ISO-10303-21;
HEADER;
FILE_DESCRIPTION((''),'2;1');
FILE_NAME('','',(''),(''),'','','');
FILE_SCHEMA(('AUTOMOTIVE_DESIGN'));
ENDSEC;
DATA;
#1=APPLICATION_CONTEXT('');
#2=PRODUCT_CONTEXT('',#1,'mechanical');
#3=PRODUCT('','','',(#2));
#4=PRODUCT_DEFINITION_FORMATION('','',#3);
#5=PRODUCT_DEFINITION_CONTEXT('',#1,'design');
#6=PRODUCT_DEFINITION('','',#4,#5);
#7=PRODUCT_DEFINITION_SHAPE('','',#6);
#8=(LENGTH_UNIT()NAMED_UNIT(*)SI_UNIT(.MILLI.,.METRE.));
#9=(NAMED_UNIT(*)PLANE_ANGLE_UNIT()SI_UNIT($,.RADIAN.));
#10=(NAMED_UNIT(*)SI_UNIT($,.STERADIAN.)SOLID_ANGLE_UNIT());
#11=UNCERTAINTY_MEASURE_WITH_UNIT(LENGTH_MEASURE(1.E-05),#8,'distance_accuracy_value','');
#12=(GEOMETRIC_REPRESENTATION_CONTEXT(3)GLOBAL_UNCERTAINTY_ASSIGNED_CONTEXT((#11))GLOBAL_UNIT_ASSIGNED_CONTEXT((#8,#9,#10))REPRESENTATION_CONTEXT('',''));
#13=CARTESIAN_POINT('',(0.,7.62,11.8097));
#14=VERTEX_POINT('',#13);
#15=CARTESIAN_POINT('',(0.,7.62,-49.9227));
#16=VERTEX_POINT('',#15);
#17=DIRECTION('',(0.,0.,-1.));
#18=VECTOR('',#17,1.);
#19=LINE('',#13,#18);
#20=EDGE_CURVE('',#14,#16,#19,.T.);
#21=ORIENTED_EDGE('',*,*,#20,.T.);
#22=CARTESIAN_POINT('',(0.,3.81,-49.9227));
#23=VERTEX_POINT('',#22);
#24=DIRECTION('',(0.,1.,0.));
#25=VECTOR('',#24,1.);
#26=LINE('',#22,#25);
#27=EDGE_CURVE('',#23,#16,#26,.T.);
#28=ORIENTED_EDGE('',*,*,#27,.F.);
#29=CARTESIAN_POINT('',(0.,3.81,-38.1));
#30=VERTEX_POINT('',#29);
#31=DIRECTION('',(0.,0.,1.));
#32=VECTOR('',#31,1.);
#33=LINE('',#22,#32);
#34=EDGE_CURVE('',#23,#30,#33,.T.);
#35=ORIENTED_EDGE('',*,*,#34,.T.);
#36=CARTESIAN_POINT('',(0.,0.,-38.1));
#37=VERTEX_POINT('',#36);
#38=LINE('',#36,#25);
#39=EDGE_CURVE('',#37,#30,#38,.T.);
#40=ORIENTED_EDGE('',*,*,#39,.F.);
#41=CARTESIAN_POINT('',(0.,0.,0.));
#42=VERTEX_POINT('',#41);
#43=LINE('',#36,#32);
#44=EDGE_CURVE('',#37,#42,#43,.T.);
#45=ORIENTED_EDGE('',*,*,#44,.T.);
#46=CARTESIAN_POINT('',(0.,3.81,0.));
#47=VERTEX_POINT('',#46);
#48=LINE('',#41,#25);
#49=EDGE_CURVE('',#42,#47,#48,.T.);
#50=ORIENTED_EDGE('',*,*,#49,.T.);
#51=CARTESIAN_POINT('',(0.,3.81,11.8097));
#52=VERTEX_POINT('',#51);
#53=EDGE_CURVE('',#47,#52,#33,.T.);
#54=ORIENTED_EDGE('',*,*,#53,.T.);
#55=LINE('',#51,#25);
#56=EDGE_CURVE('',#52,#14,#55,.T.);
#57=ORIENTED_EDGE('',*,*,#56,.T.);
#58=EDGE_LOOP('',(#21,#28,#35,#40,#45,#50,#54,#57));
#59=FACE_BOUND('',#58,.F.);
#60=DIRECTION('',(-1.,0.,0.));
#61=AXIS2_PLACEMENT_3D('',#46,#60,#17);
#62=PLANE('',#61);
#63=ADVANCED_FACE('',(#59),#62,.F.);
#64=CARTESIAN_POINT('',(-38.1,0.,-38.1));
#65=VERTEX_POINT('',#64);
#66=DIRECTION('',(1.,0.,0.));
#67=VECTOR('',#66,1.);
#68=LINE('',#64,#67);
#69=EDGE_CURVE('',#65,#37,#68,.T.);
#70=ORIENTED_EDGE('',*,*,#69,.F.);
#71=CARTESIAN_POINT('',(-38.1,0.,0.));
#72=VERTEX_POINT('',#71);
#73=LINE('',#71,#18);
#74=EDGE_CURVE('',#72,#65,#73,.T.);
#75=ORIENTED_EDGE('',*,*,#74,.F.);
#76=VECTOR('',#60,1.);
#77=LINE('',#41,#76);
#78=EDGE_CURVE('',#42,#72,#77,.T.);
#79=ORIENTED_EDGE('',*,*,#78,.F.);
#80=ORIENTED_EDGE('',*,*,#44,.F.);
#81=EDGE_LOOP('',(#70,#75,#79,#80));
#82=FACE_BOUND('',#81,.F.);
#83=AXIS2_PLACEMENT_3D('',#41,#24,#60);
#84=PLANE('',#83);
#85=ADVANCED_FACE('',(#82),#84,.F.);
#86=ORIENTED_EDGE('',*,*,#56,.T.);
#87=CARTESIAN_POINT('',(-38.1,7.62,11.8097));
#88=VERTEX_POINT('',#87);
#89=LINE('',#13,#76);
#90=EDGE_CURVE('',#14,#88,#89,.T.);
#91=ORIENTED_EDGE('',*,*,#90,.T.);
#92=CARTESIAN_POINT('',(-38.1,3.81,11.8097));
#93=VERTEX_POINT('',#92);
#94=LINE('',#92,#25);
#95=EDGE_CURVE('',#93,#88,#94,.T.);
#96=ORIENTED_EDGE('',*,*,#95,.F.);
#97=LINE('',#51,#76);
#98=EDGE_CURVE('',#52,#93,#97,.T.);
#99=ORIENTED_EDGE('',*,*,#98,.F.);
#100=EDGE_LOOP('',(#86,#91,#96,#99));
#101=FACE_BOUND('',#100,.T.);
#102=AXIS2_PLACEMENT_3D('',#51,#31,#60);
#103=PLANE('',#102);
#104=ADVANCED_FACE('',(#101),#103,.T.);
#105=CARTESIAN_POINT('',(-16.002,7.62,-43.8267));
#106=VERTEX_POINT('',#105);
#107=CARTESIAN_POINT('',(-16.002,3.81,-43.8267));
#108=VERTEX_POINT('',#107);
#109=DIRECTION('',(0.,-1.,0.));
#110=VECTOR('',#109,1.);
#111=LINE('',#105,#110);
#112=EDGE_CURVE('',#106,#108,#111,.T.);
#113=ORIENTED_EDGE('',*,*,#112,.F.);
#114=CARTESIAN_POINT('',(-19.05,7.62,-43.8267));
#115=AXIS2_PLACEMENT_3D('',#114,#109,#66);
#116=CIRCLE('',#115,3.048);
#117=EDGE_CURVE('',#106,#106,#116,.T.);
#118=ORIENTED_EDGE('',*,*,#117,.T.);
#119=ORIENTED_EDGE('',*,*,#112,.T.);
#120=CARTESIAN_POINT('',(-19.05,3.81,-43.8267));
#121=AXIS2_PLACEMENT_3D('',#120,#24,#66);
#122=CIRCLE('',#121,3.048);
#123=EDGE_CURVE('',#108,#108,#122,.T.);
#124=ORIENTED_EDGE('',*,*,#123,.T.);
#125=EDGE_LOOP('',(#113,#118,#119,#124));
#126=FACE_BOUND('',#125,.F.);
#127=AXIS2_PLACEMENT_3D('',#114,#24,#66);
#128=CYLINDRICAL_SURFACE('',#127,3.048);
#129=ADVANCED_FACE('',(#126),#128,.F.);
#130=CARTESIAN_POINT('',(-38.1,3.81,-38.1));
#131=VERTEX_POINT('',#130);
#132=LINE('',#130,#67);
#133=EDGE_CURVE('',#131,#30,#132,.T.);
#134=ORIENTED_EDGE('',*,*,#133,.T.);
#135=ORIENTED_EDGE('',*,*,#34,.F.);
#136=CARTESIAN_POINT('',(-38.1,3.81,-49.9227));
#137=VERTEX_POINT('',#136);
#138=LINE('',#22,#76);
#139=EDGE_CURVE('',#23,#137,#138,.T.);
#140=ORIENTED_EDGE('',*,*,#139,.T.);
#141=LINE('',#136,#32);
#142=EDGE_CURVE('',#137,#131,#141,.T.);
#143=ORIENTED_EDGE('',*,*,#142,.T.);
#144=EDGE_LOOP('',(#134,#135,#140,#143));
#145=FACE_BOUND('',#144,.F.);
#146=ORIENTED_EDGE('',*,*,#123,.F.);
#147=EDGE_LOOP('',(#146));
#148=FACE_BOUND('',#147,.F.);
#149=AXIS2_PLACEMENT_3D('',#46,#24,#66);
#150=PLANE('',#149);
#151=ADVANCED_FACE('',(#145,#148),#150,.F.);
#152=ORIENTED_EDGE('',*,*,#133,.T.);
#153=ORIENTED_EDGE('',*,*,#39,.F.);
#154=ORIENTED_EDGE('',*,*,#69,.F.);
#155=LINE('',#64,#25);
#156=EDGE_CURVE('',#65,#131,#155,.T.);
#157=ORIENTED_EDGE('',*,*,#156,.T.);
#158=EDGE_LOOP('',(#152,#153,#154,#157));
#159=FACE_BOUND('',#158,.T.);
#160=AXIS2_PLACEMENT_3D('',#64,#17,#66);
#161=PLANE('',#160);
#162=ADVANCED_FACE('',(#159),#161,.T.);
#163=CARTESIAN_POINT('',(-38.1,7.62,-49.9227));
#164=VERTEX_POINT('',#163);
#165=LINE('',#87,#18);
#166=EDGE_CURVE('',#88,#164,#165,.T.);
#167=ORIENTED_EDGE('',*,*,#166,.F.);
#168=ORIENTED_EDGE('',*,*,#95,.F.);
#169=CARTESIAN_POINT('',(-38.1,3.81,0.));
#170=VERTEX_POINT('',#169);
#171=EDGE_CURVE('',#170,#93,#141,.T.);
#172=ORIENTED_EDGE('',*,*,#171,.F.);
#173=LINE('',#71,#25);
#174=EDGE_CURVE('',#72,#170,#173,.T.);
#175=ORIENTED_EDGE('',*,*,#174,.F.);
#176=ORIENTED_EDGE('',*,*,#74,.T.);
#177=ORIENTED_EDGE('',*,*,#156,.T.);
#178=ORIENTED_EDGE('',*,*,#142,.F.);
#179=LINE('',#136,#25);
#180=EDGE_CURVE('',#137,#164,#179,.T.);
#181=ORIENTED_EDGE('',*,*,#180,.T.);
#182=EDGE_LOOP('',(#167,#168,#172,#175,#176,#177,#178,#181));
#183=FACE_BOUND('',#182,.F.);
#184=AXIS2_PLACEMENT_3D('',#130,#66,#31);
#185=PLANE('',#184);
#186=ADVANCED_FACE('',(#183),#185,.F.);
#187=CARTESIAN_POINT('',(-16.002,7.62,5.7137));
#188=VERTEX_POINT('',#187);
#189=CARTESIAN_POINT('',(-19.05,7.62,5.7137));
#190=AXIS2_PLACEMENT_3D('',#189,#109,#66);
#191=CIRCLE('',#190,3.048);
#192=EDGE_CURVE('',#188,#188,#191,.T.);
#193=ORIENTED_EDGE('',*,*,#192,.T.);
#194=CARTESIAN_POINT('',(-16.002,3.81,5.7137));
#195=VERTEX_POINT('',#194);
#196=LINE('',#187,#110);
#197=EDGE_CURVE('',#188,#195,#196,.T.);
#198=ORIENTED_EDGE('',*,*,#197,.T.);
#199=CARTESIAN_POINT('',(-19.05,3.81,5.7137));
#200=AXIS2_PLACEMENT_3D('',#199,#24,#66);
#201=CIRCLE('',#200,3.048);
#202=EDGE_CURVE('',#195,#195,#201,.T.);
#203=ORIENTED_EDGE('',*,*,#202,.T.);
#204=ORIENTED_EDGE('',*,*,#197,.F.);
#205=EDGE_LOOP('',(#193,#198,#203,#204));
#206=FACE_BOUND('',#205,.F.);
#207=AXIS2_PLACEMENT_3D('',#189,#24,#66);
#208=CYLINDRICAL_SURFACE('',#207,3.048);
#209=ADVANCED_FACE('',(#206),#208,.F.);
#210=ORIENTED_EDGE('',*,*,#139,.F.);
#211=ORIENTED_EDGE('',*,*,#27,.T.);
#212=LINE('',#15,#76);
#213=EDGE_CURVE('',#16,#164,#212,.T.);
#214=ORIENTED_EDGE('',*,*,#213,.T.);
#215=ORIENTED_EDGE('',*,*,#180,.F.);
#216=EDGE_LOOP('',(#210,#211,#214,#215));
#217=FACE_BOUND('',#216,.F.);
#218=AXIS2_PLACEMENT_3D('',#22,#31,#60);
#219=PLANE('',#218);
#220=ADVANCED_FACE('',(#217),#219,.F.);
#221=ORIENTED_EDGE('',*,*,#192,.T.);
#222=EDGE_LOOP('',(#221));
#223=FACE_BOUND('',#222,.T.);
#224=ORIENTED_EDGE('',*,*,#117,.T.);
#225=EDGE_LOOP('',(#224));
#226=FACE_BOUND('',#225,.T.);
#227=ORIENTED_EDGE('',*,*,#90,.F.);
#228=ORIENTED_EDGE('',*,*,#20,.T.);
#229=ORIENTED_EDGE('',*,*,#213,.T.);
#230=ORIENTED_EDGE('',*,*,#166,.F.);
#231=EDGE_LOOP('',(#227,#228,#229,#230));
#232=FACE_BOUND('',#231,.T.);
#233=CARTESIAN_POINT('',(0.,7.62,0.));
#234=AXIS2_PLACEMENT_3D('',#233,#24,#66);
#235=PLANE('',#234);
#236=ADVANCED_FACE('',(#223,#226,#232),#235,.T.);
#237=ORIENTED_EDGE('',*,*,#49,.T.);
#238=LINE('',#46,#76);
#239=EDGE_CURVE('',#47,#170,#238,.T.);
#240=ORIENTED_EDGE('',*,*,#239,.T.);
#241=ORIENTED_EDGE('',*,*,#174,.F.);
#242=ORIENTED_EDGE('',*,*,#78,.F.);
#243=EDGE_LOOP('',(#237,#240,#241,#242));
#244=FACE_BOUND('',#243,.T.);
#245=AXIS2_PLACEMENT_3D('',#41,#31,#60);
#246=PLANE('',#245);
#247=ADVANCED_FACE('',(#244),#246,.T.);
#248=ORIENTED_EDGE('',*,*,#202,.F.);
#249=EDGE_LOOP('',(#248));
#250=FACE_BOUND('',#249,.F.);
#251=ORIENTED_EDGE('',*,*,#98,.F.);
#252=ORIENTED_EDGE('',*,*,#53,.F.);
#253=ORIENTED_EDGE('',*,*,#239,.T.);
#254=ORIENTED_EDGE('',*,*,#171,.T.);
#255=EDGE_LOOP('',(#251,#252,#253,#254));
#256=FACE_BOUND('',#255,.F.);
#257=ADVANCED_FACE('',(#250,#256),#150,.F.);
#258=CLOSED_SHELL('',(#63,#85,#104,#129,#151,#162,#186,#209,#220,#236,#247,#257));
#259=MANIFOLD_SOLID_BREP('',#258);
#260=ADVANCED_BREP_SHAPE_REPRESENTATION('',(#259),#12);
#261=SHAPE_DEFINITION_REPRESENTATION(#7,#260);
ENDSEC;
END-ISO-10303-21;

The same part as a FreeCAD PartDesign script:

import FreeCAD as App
import Part
import Sketcher

V = App.Vector
Q = App.Units.Quantity


def add_polygon(sketch, points):
    """Adds a closed chain of lines whose ends are joined by coincident constraints."""
    first, n = sketch.GeometryCount, len(points)
    for a, b in zip(points, points[1:] + points[:1]):
        sketch.addGeometry(Part.LineSegment(App.Vector(*a, 0), App.Vector(*b, 0)), False)
    for i in range(n):
        sketch.addConstraint(Sketcher.Constraint("Coincident", first + i, 2, first + (i + 1) % n, 1))

doc = App.newDocument("Part")
body = doc.addObject("PartDesign::Body", "Body")

# Sketch on XZ plane
sketch1 = body.newObject("Sketcher::SketchObject", "Sketch")
sketch1.AttachmentSupport = (doc.getObject("XZ_Plane"), [""])
sketch1.MapMode = "FlatFace"
add_polygon(sketch1, [(-38, 0), (0, 0), (0, -38), (-38, -38)])  # lines 0-3
sketch1.addConstraint([
    Sketcher.Constraint("Horizontal", 0),
    Sketcher.Constraint("Vertical", 1),
    Sketcher.Constraint("Horizontal", 2),
    Sketcher.Constraint("Vertical", 3),
    Sketcher.Constraint("Coincident", 0, 2, -1, 1),
    Sketcher.Constraint("Equal", 2, 1),
    Sketcher.Constraint("DistanceX", 0, 1, 0, 2, Q("1.5 in")),
])
pad1 = body.newObject("PartDesign::Pad", "Pad")
pad1.Profile = sketch1
pad1.Length = Q("0.15 in")
pad1.Reversed = True

# Sketch on XZ plane
sketch2 = body.newObject("Sketcher::SketchObject", "Sketch001")
sketch2.AttachmentSupport = (doc.getObject("XZ_Plane"), [""])
sketch2.MapMode = "FlatFace"
sketch2.AttachmentOffset = App.Placement(V(0, 0, -0.15 * 25.4), App.Rotation())
add_polygon(sketch2, [(-38, 12), (0, 12), (0, -50), (-38, -50)])  # lines 0-3
sketch2.addConstraint([
    Sketcher.Constraint("Horizontal", 0),
    Sketcher.Constraint("Vertical", 1),
    Sketcher.Constraint("Horizontal", 2),
    Sketcher.Constraint("Vertical", 3),
    Sketcher.Constraint("PointOnObject", 0, 2, -2),
    Sketcher.Constraint("DistanceX", 0, 1, 0, 2, Q("1.5 in")),
    Sketcher.Constraint("DistanceY", 1, 2, 1, 1, Q("2.4304 in")),
    Sketcher.Constraint("DistanceY", -1, 1, 0, 2, 11.8097),
])
pad2 = body.newObject("PartDesign::Pad", "Pad001")
pad2.Profile = sketch2
pad2.Length = Q("0.15 in")
pad2.Reversed = True

# Sketch on XZ plane
sketch3 = body.newObject("Sketcher::SketchObject", "Sketch002")
sketch3.AttachmentSupport = (doc.getObject("XZ_Plane"), [""])
sketch3.MapMode = "FlatFace"
sketch3.AttachmentOffset = App.Placement(V(0, 0, -0.3 * 25.4), App.Rotation())
sketch3.addGeometry([
    Part.Circle(V(-19.1, 5.7, 0), V(0, 0, 1), 3),
    Part.Circle(V(-19.1, -43.8, 0), V(0, 0, 1), 3),
], False)
sketch3.addConstraint([
    Sketcher.Constraint("Equal", 0, 1),
    Sketcher.Constraint("Vertical", 0, 3, 1, 3),
    Sketcher.Constraint("Diameter", 0, Q("0.24 in")),
    Sketcher.Constraint("DistanceX", 0, 3, -1, 1, Q("0.75 in")),
    Sketcher.Constraint("DistanceY", 1, 3, 0, 3, Q("1.9504 in")),
    Sketcher.Constraint("DistanceY", -1, 1, 0, 3, 5.7137),
])
pocket1 = body.newObject("PartDesign::Pocket", "Pocket")
pocket1.Profile = sketch3
pocket1.Length = Q("0.15 in")
pocket1.Reversed = True

doc.recompute()
